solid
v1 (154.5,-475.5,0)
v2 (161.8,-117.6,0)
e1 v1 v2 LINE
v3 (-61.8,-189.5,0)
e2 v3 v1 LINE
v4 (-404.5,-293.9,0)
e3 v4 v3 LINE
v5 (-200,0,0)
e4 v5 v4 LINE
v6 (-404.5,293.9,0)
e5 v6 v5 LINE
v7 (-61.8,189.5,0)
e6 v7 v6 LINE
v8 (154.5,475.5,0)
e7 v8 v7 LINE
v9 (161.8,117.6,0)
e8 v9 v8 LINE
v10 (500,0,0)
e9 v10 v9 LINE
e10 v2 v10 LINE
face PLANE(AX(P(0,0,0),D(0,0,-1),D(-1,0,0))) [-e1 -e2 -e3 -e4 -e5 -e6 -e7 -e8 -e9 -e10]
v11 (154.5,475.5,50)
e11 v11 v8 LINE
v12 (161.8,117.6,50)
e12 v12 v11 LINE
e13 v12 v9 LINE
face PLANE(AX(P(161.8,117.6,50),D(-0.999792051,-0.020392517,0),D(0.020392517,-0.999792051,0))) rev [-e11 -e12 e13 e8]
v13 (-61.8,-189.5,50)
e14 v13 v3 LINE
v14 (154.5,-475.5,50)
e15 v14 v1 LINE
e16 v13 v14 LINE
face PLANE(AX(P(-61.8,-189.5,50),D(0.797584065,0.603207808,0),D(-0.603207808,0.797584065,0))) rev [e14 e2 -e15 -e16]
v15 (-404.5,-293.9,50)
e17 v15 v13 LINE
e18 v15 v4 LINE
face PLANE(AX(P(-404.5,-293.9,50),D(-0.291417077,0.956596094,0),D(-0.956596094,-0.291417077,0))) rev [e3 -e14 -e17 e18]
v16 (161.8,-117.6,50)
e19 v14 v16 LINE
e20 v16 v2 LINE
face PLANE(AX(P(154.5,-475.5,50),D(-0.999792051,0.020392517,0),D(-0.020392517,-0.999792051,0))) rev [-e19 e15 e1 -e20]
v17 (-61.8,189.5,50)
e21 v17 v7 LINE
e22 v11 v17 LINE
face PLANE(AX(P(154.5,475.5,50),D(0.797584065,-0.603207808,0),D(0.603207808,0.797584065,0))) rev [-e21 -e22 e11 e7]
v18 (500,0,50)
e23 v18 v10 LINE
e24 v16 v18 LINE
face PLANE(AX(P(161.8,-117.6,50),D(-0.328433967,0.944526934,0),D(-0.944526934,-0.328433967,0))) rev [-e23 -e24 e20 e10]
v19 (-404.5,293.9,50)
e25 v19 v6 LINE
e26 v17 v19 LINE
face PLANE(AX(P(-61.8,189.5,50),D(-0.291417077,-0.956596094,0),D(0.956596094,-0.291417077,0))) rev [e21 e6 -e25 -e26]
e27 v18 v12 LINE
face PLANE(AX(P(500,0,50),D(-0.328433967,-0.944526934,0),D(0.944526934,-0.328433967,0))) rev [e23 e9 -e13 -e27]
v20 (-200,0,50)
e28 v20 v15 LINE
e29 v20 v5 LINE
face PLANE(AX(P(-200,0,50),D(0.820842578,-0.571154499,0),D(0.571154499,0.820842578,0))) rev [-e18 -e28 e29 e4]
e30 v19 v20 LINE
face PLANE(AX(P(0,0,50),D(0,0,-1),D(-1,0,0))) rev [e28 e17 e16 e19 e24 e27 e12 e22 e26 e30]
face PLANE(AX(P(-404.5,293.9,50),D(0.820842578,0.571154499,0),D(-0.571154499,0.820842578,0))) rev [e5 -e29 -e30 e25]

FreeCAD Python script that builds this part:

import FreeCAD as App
import Part
import Sketcher
Q = App.Units.Quantity

doc = App.newDocument("Part")
params = doc.addObject("Spreadsheet::Sheet", "Params")
for row, (alias, value) in enumerate([
    ("pad1_length", "50 mm"),
], start=1):
    params.set(f"A{row}", alias)
    params.set(f"B{row}", "=" + value)
    params.setAlias(f"B{row}", alias)

body = doc.addObject("PartDesign::Body", "Body")

sketch1 = doc.addObject("Sketcher::SketchObject", "Sketch")
body.addObject(sketch1)
sketch1.AttachmentSupport = (doc.XY_Plane, [""])
sketch1.MapMode = "FlatFace"
sketch1.addGeometry(Part.LineSegment(App.Vector(500, 0, 0), App.Vector(161.8, 117.6, 0)), False)
sketch1.addGeometry(Part.LineSegment(App.Vector(161.8, 117.6, 0), App.Vector(154.5, 475.5, 0)), False)
sketch1.addGeometry(Part.LineSegment(App.Vector(154.5, 475.5, 0), App.Vector(-61.8, 189.5, 0)), False)
sketch1.addGeometry(Part.LineSegment(App.Vector(-61.8, 189.5, 0), App.Vector(-404.5, 293.9, 0)), False)
sketch1.addGeometry(Part.LineSegment(App.Vector(-404.5, 293.9, 0), App.Vector(-200, 0, 0)), False)
sketch1.addGeometry(Part.LineSegment(App.Vector(-200, 0, 0), App.Vector(-404.5, -293.9, 0)), False)
sketch1.addGeometry(Part.LineSegment(App.Vector(-404.5, -293.9, 0), App.Vector(-61.8, -189.5, 0)), False)
sketch1.addGeometry(Part.LineSegment(App.Vector(-61.8, -189.5, 0), App.Vector(154.5, -475.5, 0)), False)
sketch1.addGeometry(Part.LineSegment(App.Vector(154.5, -475.5, 0), App.Vector(161.8, -117.6, 0)), False)
sketch1.addGeometry(Part.LineSegment(App.Vector(161.8, -117.6, 0), App.Vector(500, 0, 0)), False)
sketch1.addConstraint(Sketcher.Constraint("Coincident", 0, 2, 1, 1))
sketch1.addConstraint(Sketcher.Constraint("Coincident", 1, 2, 2, 1))
sketch1.addConstraint(Sketcher.Constraint("Coincident", 2, 2, 3, 1))
sketch1.addConstraint(Sketcher.Constraint("Coincident", 3, 2, 4, 1))
sketch1.addConstraint(Sketcher.Constraint("Coincident", 4, 2, 5, 1))
sketch1.addConstraint(Sketcher.Constraint("Coincident", 5, 2, 6, 1))
sketch1.addConstraint(Sketcher.Constraint("Coincident", 6, 2, 7, 1))
sketch1.addConstraint(Sketcher.Constraint("Coincident", 7, 2, 8, 1))
sketch1.addConstraint(Sketcher.Constraint("Coincident", 8, 2, 9, 1))
sketch1.addConstraint(Sketcher.Constraint("Coincident", 9, 2, 0, 1))
sketch1.addConstraint(Sketcher.Constraint("Symmetric", 3, 2, 5, 2, -1))
sketch1.addConstraint(Sketcher.Constraint("Symmetric", 2, 2, 6, 2, -1))
sketch1.addConstraint(Sketcher.Constraint("Symmetric", 1, 2, 7, 2, -1))
sketch1.addConstraint(Sketcher.Constraint("Symmetric", 0, 2, 8, 2, -1))
sketch1.addConstraint(Sketcher.Constraint("PointOnObject", 4, 2, -1))
sketch1.addConstraint(Sketcher.Constraint("PointOnObject", 9, 2, -1))
sketch1.addConstraint(Sketcher.Constraint("DistanceX", 4, 2, -1, 1, Q("200 mm")))
sketch1.addConstraint(Sketcher.Constraint("DistanceX", -1, 1, 9, 2, Q("500 mm")))
sketch1.addConstraint(Sketcher.Constraint("Angle", 2, Q("-127.099987 deg")))
sketch1.addConstraint(Sketcher.Constraint("DistanceY", 2, 2, 1, 2, Q("286 mm")))
sketch1.addConstraint(Sketcher.Constraint("DistanceX", 3, 2, 1, 2, Q("559 mm")))
sketch1.addConstraint(Sketcher.Constraint("DistanceY", 6, 2, 2, 2, Q("379 mm")))
sketch1.addConstraint(Sketcher.Constraint("DistanceX", -1, 1, 0, 2, Q("161.8 mm")))
sketch1.addConstraint(Sketcher.Constraint("DistanceY", -1, 1, 0, 2, Q("117.6 mm")))
sketch1.addConstraint(Sketcher.Constraint("DistanceX", -1, 1, 1, 2, Q("154.5 mm")))
sketch1.addConstraint(Sketcher.Constraint("DistanceY", -1, 1, 3, 2, Q("293.9 mm")))
pad1 = doc.addObject("PartDesign::Pad", "Pad")
body.addObject(pad1)
pad1.Profile = sketch1
pad1.setExpression("Length", "Params.pad1_length")

doc.recompute()
